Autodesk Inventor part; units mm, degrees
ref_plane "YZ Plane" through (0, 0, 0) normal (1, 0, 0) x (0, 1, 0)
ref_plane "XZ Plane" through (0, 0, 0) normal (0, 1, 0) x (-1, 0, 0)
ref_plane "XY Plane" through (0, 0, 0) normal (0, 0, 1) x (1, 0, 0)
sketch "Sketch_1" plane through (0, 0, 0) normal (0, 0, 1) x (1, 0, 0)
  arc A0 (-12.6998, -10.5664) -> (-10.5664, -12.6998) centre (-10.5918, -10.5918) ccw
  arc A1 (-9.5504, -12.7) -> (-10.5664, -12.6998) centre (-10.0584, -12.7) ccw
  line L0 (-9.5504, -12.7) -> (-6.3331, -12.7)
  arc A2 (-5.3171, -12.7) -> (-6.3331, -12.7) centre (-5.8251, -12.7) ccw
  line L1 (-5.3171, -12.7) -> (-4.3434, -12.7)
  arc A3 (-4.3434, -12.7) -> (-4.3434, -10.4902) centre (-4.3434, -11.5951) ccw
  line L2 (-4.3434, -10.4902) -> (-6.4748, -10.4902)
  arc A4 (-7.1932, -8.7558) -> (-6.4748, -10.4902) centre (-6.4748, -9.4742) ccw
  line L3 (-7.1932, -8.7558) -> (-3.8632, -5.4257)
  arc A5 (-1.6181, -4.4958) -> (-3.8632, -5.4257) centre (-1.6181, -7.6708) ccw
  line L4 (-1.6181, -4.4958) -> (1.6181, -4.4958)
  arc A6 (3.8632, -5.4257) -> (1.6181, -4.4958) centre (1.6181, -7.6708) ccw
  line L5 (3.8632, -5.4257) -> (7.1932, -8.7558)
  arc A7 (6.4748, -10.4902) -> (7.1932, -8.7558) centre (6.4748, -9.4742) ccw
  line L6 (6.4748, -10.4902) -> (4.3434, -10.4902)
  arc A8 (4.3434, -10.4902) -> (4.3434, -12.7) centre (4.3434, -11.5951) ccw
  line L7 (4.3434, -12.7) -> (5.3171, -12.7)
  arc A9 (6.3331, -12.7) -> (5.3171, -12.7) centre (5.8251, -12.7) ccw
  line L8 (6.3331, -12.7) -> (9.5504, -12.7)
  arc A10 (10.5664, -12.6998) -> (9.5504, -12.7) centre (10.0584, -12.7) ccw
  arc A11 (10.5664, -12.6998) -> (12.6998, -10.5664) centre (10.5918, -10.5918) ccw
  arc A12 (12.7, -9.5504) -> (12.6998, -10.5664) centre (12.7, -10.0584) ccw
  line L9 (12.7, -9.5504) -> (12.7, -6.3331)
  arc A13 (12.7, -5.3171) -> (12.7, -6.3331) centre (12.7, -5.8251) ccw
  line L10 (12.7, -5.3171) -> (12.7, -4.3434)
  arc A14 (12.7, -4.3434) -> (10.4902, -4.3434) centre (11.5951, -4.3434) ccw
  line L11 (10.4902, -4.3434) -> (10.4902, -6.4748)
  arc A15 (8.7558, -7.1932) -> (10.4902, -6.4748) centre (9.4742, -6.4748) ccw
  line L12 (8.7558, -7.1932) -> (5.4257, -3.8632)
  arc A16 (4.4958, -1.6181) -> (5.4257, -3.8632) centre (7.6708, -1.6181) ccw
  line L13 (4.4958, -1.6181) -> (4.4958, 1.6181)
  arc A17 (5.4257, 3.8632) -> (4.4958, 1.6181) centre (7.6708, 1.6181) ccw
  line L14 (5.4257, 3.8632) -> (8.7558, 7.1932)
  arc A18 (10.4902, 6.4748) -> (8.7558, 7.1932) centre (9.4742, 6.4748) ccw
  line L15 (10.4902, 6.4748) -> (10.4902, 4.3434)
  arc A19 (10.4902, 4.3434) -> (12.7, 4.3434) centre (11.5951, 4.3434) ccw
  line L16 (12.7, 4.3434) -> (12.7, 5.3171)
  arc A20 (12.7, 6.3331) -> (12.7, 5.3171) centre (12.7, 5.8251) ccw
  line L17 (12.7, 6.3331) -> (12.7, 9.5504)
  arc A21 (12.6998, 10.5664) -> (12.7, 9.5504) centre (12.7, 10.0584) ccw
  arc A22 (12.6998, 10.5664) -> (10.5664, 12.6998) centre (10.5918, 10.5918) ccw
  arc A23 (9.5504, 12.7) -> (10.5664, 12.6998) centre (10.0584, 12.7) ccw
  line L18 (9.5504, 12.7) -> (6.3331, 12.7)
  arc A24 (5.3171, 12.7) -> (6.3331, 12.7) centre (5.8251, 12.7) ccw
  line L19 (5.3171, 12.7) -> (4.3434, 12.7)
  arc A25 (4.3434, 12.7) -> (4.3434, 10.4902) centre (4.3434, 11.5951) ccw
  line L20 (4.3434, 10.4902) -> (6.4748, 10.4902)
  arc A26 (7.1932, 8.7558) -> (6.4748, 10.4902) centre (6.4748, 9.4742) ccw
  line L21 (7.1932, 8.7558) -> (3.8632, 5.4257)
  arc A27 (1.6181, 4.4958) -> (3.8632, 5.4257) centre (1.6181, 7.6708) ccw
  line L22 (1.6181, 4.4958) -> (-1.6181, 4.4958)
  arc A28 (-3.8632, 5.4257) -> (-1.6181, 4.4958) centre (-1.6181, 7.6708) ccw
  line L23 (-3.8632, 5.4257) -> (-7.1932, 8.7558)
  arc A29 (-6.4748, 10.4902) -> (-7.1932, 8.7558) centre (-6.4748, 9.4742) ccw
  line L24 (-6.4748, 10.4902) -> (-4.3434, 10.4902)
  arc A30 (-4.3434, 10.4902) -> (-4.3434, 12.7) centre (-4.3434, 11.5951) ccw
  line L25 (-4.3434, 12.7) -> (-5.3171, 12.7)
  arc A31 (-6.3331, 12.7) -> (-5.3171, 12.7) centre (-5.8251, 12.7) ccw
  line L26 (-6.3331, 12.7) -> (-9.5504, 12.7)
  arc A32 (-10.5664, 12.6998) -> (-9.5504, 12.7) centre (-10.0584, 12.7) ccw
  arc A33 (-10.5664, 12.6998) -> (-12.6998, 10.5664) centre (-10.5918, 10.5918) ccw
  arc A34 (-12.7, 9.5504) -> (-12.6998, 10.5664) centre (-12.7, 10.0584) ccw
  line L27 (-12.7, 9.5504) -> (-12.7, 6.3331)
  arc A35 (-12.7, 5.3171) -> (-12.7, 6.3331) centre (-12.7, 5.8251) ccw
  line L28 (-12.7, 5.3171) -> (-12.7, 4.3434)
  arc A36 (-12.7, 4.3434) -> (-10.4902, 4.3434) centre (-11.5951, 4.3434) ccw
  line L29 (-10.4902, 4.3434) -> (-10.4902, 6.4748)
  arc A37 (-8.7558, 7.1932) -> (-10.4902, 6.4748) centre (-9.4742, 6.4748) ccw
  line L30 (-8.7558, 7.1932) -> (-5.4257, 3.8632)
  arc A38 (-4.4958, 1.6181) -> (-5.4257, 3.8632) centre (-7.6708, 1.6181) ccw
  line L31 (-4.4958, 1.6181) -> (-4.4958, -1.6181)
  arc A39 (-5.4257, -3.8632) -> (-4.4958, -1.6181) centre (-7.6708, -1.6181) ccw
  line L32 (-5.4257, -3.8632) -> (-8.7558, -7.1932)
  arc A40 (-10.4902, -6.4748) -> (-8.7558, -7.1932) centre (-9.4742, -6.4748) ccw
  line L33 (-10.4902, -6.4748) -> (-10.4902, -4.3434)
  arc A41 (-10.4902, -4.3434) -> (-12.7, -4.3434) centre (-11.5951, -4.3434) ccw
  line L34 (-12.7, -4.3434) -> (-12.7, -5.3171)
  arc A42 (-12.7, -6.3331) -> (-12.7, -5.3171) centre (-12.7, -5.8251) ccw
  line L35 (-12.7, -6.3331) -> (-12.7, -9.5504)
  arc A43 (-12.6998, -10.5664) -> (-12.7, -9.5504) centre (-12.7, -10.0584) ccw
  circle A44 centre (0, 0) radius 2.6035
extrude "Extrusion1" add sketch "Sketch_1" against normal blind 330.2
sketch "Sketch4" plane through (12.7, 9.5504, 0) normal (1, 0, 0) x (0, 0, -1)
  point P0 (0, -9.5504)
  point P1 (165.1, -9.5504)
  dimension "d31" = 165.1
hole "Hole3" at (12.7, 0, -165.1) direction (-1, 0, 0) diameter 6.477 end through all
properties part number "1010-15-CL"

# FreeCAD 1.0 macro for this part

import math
import FreeCAD as App
import Part
import Sketcher
Q = App.Units.Quantity

doc = App.newDocument("Part")
body = doc.addObject("PartDesign::Body", "Body")

sketch1 = body.newObject("Sketcher::SketchObject", "Sketch")
sketch1.AttachmentSupport = (doc.getObject("XY_Plane"), [""])
sketch1.MapMode = "FlatFace"
sketch1.addGeometry([
    Part.ArcOfCircle(Part.Circle(App.Vector(-12.7, -10.1, 0), App.Vector(0, 0, 1), 0.5), math.radians(-90), math.radians(90)),
    Part.ArcOfCircle(Part.Circle(App.Vector(-10.6, -10.6, 0), App.Vector(0, 0, 1), 2.1), math.radians(179), math.radians(271)),
    Part.ArcOfCircle(Part.Circle(App.Vector(-10.1, -12.7, 0), App.Vector(0, 0, 1), 0.5), math.radians(0), math.radians(180)),
    Part.LineSegment(App.Vector(-9.6, -12.7, 0), App.Vector(-6.3, -12.7, 0)),
    Part.ArcOfCircle(Part.Circle(App.Vector(-5.8, -12.7, 0), App.Vector(0, 0, 1), 0.5), math.radians(0), math.radians(180)),
    Part.LineSegment(App.Vector(-5.3, -12.7, 0), App.Vector(-4.3, -12.7, 0)),
    Part.ArcOfCircle(Part.Circle(App.Vector(-4.3, -11.6, 0), App.Vector(0, 0, 1), 1.1), math.radians(-90), math.radians(90)),
    Part.LineSegment(App.Vector(-4.3, -10.5, 0), App.Vector(-6.5, -10.5, 0)),
    Part.ArcOfCircle(Part.Circle(App.Vector(-6.5, -9.5, 0), App.Vector(0, 0, 1), 1), math.radians(135), math.radians(270)),
    Part.LineSegment(App.Vector(-7.2, -8.8, 0), App.Vector(-3.9, -5.4, 0)),
    Part.ArcOfCircle(Part.Circle(App.Vector(-1.6, -7.7, 0), App.Vector(0, 0, 1), 3.2), math.radians(90), math.radians(135)),
    Part.LineSegment(App.Vector(-1.6, -4.5, 0), App.Vector(1.6, -4.5, 0)),
    Part.ArcOfCircle(Part.Circle(App.Vector(1.6, -7.7, 0), App.Vector(0, 0, 1), 3.2), math.radians(45), math.radians(90)),
    Part.LineSegment(App.Vector(3.9, -5.4, 0), App.Vector(7.2, -8.8, 0)),
    Part.ArcOfCircle(Part.Circle(App.Vector(6.5, -9.5, 0), App.Vector(0, 0, 1), 1), math.radians(-90), math.radians(45)),
    Part.LineSegment(App.Vector(6.5, -10.5, 0), App.Vector(4.3, -10.5, 0)),
    Part.ArcOfCircle(Part.Circle(App.Vector(4.3, -11.6, 0), App.Vector(0, 0, 1), 1.1), math.radians(90), math.radians(270)),
    Part.LineSegment(App.Vector(4.3, -12.7, 0), App.Vector(5.3, -12.7, 0)),
    Part.ArcOfCircle(Part.Circle(App.Vector(5.8, -12.7, 0), App.Vector(0, 0, 1), 0.5), math.radians(0), math.radians(180)),
    Part.LineSegment(App.Vector(6.3, -12.7, 0), App.Vector(9.6, -12.7, 0)),
    Part.ArcOfCircle(Part.Circle(App.Vector(10.1, -12.7, 0), App.Vector(0, 0, 1), 0.5), math.radians(0), math.radians(180)),
    Part.ArcOfCircle(Part.Circle(App.Vector(10.6, -10.6, 0), App.Vector(0, 0, 1), 2.1), math.radians(-91), math.radians(1)),
    Part.ArcOfCircle(Part.Circle(App.Vector(12.7, -10.1, 0), App.Vector(0, 0, 1), 0.5), math.radians(90), math.radians(270)),
    Part.LineSegment(App.Vector(12.7, -9.6, 0), App.Vector(12.7, -6.3, 0)),
    Part.ArcOfCircle(Part.Circle(App.Vector(12.7, -5.8, 0), App.Vector(0, 0, 1), 0.5), math.radians(90), math.radians(270)),
    Part.LineSegment(App.Vector(12.7, -5.3, 0), App.Vector(12.7, -4.3, 0)),
    Part.ArcOfCircle(Part.Circle(App.Vector(11.6, -4.3, 0), App.Vector(0, 0, 1), 1.1), math.radians(0), math.radians(180)),
    Part.LineSegment(App.Vector(10.5, -4.3, 0), App.Vector(10.5, -6.5, 0)),
    Part.ArcOfCircle(Part.Circle(App.Vector(9.5, -6.5, 0), App.Vector(0, 0, 1), 1), math.radians(-135), math.radians(0)),
    Part.LineSegment(App.Vector(8.8, -7.2, 0), App.Vector(5.4, -3.9, 0)),
    Part.ArcOfCircle(Part.Circle(App.Vector(7.7, -1.6, 0), App.Vector(0, 0, 1), 3.2), math.radians(180), math.radians(225)),
    Part.LineSegment(App.Vector(4.5, -1.6, 0), App.Vector(4.5, 1.6, 0)),
    Part.ArcOfCircle(Part.Circle(App.Vector(7.7, 1.6, 0), App.Vector(0, 0, 1), 3.2), math.radians(135), math.radians(180)),
    Part.LineSegment(App.Vector(5.4, 3.9, 0), App.Vector(8.8, 7.2, 0)),
    Part.ArcOfCircle(Part.Circle(App.Vector(9.5, 6.5, 0), App.Vector(0, 0, 1), 1), math.radians(0), math.radians(135)),
    Part.LineSegment(App.Vector(10.5, 6.5, 0), App.Vector(10.5, 4.3, 0)),
    Part.ArcOfCircle(Part.Circle(App.Vector(11.6, 4.3, 0), App.Vector(0, 0, 1), 1.1), math.radians(180), math.radians(360)),
    Part.LineSegment(App.Vector(12.7, 4.3, 0), App.Vector(12.7, 5.3, 0)),
    Part.ArcOfCircle(Part.Circle(App.Vector(12.7, 5.8, 0), App.Vector(0, 0, 1), 0.5), math.radians(90), math.radians(270)),
    Part.LineSegment(App.Vector(12.7, 6.3, 0), App.Vector(12.7, 9.6, 0)),
    Part.ArcOfCircle(Part.Circle(App.Vector(12.7, 10.1, 0), App.Vector(0, 0, 1), 0.5), math.radians(90), math.radians(270)),
    Part.ArcOfCircle(Part.Circle(App.Vector(10.6, 10.6, 0), App.Vector(0, 0, 1), 2.1), math.radians(-1), math.radians(91)),
    Part.ArcOfCircle(Part.Circle(App.Vector(10.1, 12.7, 0), App.Vector(0, 0, 1), 0.5), math.radians(180), math.radians(360)),
    Part.LineSegment(App.Vector(9.6, 12.7, 0), App.Vector(6.3, 12.7, 0)),
    Part.ArcOfCircle(Part.Circle(App.Vector(5.8, 12.7, 0), App.Vector(0, 0, 1), 0.5), math.radians(180), math.radians(360)),
    Part.LineSegment(App.Vector(5.3, 12.7, 0), App.Vector(4.3, 12.7, 0)),
    Part.ArcOfCircle(Part.Circle(App.Vector(4.3, 11.6, 0), App.Vector(0, 0, 1), 1.1), math.radians(90), math.radians(270)),
    Part.LineSegment(App.Vector(4.3, 10.5, 0), App.Vector(6.5, 10.5, 0)),
    Part.ArcOfCircle(Part.Circle(App.Vector(6.5, 9.5, 0), App.Vector(0, 0, 1), 1), math.radians(-45), math.radians(90)),
    Part.LineSegment(App.Vector(7.2, 8.8, 0), App.Vector(3.9, 5.4, 0)),
    Part.ArcOfCircle(Part.Circle(App.Vector(1.6, 7.7, 0), App.Vector(0, 0, 1), 3.2), math.radians(-90), math.radians(-45)),
    Part.LineSegment(App.Vector(1.6, 4.5, 0), App.Vector(-1.6, 4.5, 0)),
    Part.ArcOfCircle(Part.Circle(App.Vector(-1.6, 7.7, 0), App.Vector(0, 0, 1), 3.2), math.radians(-135), math.radians(-90)),
    Part.LineSegment(App.Vector(-3.9, 5.4, 0), App.Vector(-7.2, 8.8, 0)),
    Part.ArcOfCircle(Part.Circle(App.Vector(-6.5, 9.5, 0), App.Vector(0, 0, 1), 1), math.radians(90), math.radians(225)),
    Part.LineSegment(App.Vector(-6.5, 10.5, 0), App.Vector(-4.3, 10.5, 0)),
    Part.ArcOfCircle(Part.Circle(App.Vector(-4.3, 11.6, 0), App.Vector(0, 0, 1), 1.1), math.radians(-90), math.radians(90)),
    Part.LineSegment(App.Vector(-4.3, 12.7, 0), App.Vector(-5.3, 12.7, 0)),
    Part.ArcOfCircle(Part.Circle(App.Vector(-5.8, 12.7, 0), App.Vector(0, 0, 1), 0.5), math.radians(180), math.radians(360)),
    Part.LineSegment(App.Vector(-6.3, 12.7, 0), App.Vector(-9.6, 12.7, 0)),
    Part.ArcOfCircle(Part.Circle(App.Vector(-10.1, 12.7, 0), App.Vector(0, 0, 1), 0.5), math.radians(-180), math.radians(0)),
    Part.ArcOfCircle(Part.Circle(App.Vector(-10.6, 10.6, 0), App.Vector(0, 0, 1), 2.1), math.radians(89), math.radians(181)),
    Part.ArcOfCircle(Part.Circle(App.Vector(-12.7, 10.1, 0), App.Vector(0, 0, 1), 0.5), math.radians(-90), math.radians(90)),
    Part.LineSegment(App.Vector(-12.7, 9.6, 0), App.Vector(-12.7, 6.3, 0)),
    Part.ArcOfCircle(Part.Circle(App.Vector(-12.7, 5.8, 0), App.Vector(0, 0, 1), 0.5), math.radians(-90), math.radians(90)),
    Part.LineSegment(App.Vector(-12.7, 5.3, 0), App.Vector(-12.7, 4.3, 0)),
    Part.ArcOfCircle(Part.Circle(App.Vector(-11.6, 4.3, 0), App.Vector(0, 0, 1), 1.1), math.radians(180), math.radians(360)),
    Part.LineSegment(App.Vector(-10.5, 4.3, 0), App.Vector(-10.5, 6.5, 0)),
    Part.ArcOfCircle(Part.Circle(App.Vector(-9.5, 6.5, 0), App.Vector(0, 0, 1), 1), math.radians(45), math.radians(180)),
    Part.LineSegment(App.Vector(-8.8, 7.2, 0), App.Vector(-5.4, 3.9, 0)),
    Part.ArcOfCircle(Part.Circle(App.Vector(-7.7, 1.6, 0), App.Vector(0, 0, 1), 3.2), math.radians(0), math.radians(45)),
    Part.LineSegment(App.Vector(-4.5, 1.6, 0), App.Vector(-4.5, -1.6, 0)),
    Part.ArcOfCircle(Part.Circle(App.Vector(-7.7, -1.6, 0), App.Vector(0, 0, 1), 3.2), math.radians(-45), math.radians(0)),
    Part.LineSegment(App.Vector(-5.4, -3.9, 0), App.Vector(-8.8, -7.2, 0)),
    Part.ArcOfCircle(Part.Circle(App.Vector(-9.5, -6.5, 0), App.Vector(0, 0, 1), 1), math.radians(180), math.radians(315)),
    Part.LineSegment(App.Vector(-10.5, -6.5, 0), App.Vector(-10.5, -4.3, 0)),
    Part.ArcOfCircle(Part.Circle(App.Vector(-11.6, -4.3, 0), App.Vector(0, 0, 1), 1.1), math.radians(0), math.radians(180)),
    Part.LineSegment(App.Vector(-12.7, -4.3, 0), App.Vector(-12.7, -5.3, 0)),
    Part.ArcOfCircle(Part.Circle(App.Vector(-12.7, -5.8, 0), App.Vector(0, 0, 1), 0.5), math.radians(-90), math.radians(90)),
    Part.LineSegment(App.Vector(-12.7, -6.3, 0), App.Vector(-12.7, -9.6, 0)),
    Part.Circle(App.Vector(0, 0, 0), App.Vector(0, 0, 1), 2.6),
], False)
sketch1.addConstraint([
    Sketcher.Constraint("Coincident", 0, 1, 1, 1),
    Sketcher.Constraint("Coincident", 1, 2, 2, 2),
    Sketcher.Constraint("Coincident", 2, 1, 3, 1),
    Sketcher.Constraint("Coincident", 3, 2, 4, 2),
    Sketcher.Constraint("Coincident", 4, 1, 5, 1),
    Sketcher.Constraint("Tangent", 5, 2, 6, 1),
    Sketcher.Constraint("Tangent", 6, 2, 7, 1),
    Sketcher.Constraint("Tangent", 7, 2, 8, 2),
    Sketcher.Constraint("Tangent", 8, 1, 9, 1),
    Sketcher.Constraint("Tangent", 9, 2, 10, 2),
    Sketcher.Constraint("Tangent", 10, 1, 11, 1),
    Sketcher.Constraint("Tangent", 11, 2, 12, 2),
    Sketcher.Constraint("Tangent", 12, 1, 13, 1),
    Sketcher.Constraint("Tangent", 13, 2, 14, 2),
    Sketcher.Constraint("Tangent", 14, 1, 15, 1),
    Sketcher.Constraint("Tangent", 15, 2, 16, 1),
    Sketcher.Constraint("Tangent", 16, 2, 17, 1),
    Sketcher.Constraint("Coincident", 17, 2, 18, 2),
    Sketcher.Constraint("Coincident", 18, 1, 19, 1),
    Sketcher.Constraint("Coincident", 19, 2, 20, 2),
    Sketcher.Constraint("Coincident", 20, 1, 21, 1),
    Sketcher.Constraint("Coincident", 21, 2, 22, 2),
    Sketcher.Constraint("Coincident", 22, 1, 23, 1),
    Sketcher.Constraint("Coincident", 23, 2, 24, 2),
    Sketcher.Constraint("Coincident", 24, 1, 25, 1),
    Sketcher.Constraint("Tangent", 25, 2, 26, 1),
    Sketcher.Constraint("Tangent", 26, 2, 27, 1),
    Sketcher.Constraint("Tangent", 27, 2, 28, 2),
    Sketcher.Constraint("Tangent", 28, 1, 29, 1),
    Sketcher.Constraint("Tangent", 29, 2, 30, 2),
    Sketcher.Constraint("Tangent", 30, 1, 31, 1),
    Sketcher.Constraint("Tangent", 31, 2, 32, 2),
    Sketcher.Constraint("Tangent", 32, 1, 33, 1),
    Sketcher.Constraint("Tangent", 33, 2, 34, 2),
    Sketcher.Constraint("Tangent", 34, 1, 35, 1),
    Sketcher.Constraint("Tangent", 35, 2, 36, 1),
    Sketcher.Constraint("Tangent", 36, 2, 37, 1),
    Sketcher.Constraint("Coincident", 37, 2, 38, 2),
    Sketcher.Constraint("Coincident", 38, 1, 39, 1),
    Sketcher.Constraint("Coincident", 39, 2, 40, 2),
    Sketcher.Constraint("Coincident", 40, 1, 41, 1),
    Sketcher.Constraint("Coincident", 41, 2, 42, 2),
    Sketcher.Constraint("Coincident", 42, 1, 43, 1),
    Sketcher.Constraint("Coincident", 43, 2, 44, 2),
    Sketcher.Constraint("Coincident", 44, 1, 45, 1),
    Sketcher.Constraint("Tangent", 45, 2, 46, 1),
    Sketcher.Constraint("Tangent", 46, 2, 47, 1),
    Sketcher.Constraint("Tangent", 47, 2, 48, 2),
    Sketcher.Constraint("Tangent", 48, 1, 49, 1),
    Sketcher.Constraint("Tangent", 49, 2, 50, 2),
    Sketcher.Constraint("Tangent", 50, 1, 51, 1),
    Sketcher.Constraint("Tangent", 51, 2, 52, 2),
    Sketcher.Constraint("Tangent", 52, 1, 53, 1),
    Sketcher.Constraint("Tangent", 53, 2, 54, 2),
    Sketcher.Constraint("Tangent", 54, 1, 55, 1),
    Sketcher.Constraint("Tangent", 55, 2, 56, 1),
    Sketcher.Constraint("Tangent", 56, 2, 57, 1),
    Sketcher.Constraint("Coincident", 57, 2, 58, 2),
    Sketcher.Constraint("Coincident", 58, 1, 59, 1),
    Sketcher.Constraint("Coincident", 59, 2, 60, 2),
    Sketcher.Constraint("Coincident", 60, 1, 61, 1),
    Sketcher.Constraint("Coincident", 61, 2, 62, 2),
    Sketcher.Constraint("Coincident", 62, 1, 63, 1),
    Sketcher.Constraint("Coincident", 63, 2, 64, 2),
    Sketcher.Constraint("Coincident", 64, 1, 65, 1),
    Sketcher.Constraint("Tangent", 65, 2, 66, 1),
    Sketcher.Constraint("Tangent", 66, 2, 67, 1),
    Sketcher.Constraint("Tangent", 67, 2, 68, 2),
    Sketcher.Constraint("Tangent", 68, 1, 69, 1),
    Sketcher.Constraint("Tangent", 69, 2, 70, 2),
    Sketcher.Constraint("Tangent", 70, 1, 71, 1),
    Sketcher.Constraint("Tangent", 71, 2, 72, 2),
    Sketcher.Constraint("Tangent", 72, 1, 73, 1),
    Sketcher.Constraint("Tangent", 73, 2, 74, 2),
    Sketcher.Constraint("Tangent", 74, 1, 75, 1),
    Sketcher.Constraint("Tangent", 75, 2, 76, 1),
    Sketcher.Constraint("Tangent", 76, 2, 77, 1),
    Sketcher.Constraint("Coincident", 77, 2, 78, 2),
    Sketcher.Constraint("Coincident", 78, 1, 79, 1),
    Sketcher.Constraint("Coincident", 79, 2, 0, 2),
    Sketcher.Constraint("Horizontal", 3),
    Sketcher.Constraint("Horizontal", 5),
    Sketcher.Constraint("Horizontal", 7),
    Sketcher.Constraint("Horizontal", 11),
    Sketcher.Constraint("Horizontal", 15),
    Sketcher.Constraint("Horizontal", 17),
    Sketcher.Constraint("Horizontal", 19),
    Sketcher.Constraint("Vertical", 23),
    Sketcher.Constraint("Vertical", 25),
    Sketcher.Constraint("Vertical", 27),
    Sketcher.Constraint("Vertical", 31),
    Sketcher.Constraint("Vertical", 35),
    Sketcher.Constraint("Vertical", 37),
    Sketcher.Constraint("Vertical", 39),
    Sketcher.Constraint("Horizontal", 43),
    Sketcher.Constraint("Horizontal", 45),
    Sketcher.Constraint("Horizontal", 47),
    Sketcher.Constraint("Horizontal", 51),
    Sketcher.Constraint("Horizontal", 55),
    Sketcher.Constraint("Horizontal", 57),
    Sketcher.Constraint("Horizontal", 59),
    Sketcher.Constraint("Vertical", 63),
    Sketcher.Constraint("Vertical", 65),
    Sketcher.Constraint("Vertical", 67),
    Sketcher.Constraint("Vertical", 71),
    Sketcher.Constraint("Vertical", 75),
    Sketcher.Constraint("Vertical", 77),
    Sketcher.Constraint("Vertical", 79),
    Sketcher.Constraint("Coincident", 80, 3, -1, 1),
    Sketcher.Constraint("Equal", 0, 2),
    Sketcher.Constraint("Equal", 2, 4),
    Sketcher.Constraint("Equal", 10, 12),
    Sketcher.Constraint("Equal", 8, 14),
    Sketcher.Constraint("Equal", 6, 16),
    Sketcher.Constraint("Equal", 4, 18),
    Sketcher.Constraint("Equal", 18, 20),
    Sketcher.Constraint("Equal", 1, 21),
    Sketcher.Constraint("Equal", 20, 22),
    Sketcher.Constraint("Equal", 22, 24),
    Sketcher.Constraint("Equal", 16, 26),
    Sketcher.Constraint("Equal", 14, 28),
    Sketcher.Constraint("Equal", 12, 30),
    Sketcher.Constraint("Equal", 30, 32),
    Sketcher.Constraint("Equal", 28, 34),
    Sketcher.Constraint("Equal", 26, 36),
    Sketcher.Constraint("Equal", 24, 38),
    Sketcher.Constraint("Equal", 38, 40),
    Sketcher.Constraint("Equal", 21, 41),
    Sketcher.Constraint("Equal", 40, 42),
    Sketcher.Constraint("Equal", 42, 44),
    Sketcher.Constraint("Equal", 36, 46),
    Sketcher.Constraint("Equal", 34, 48),
    Sketcher.Constraint("Equal", 32, 50),
    Sketcher.Constraint("Equal", 50, 52),
    Sketcher.Constraint("Equal", 48, 54),
    Sketcher.Constraint("Equal", 46, 56),
    Sketcher.Constraint("Equal", 44, 58),
    Sketcher.Constraint("Equal", 58, 60),
    Sketcher.Constraint("Equal", 41, 61),
    Sketcher.Constraint("Equal", 60, 62),
    Sketcher.Constraint("Equal", 62, 64),
    Sketcher.Constraint("Equal", 56, 66),
    Sketcher.Constraint("Equal", 54, 68),
    Sketcher.Constraint("Equal", 52, 70),
    Sketcher.Constraint("Equal", 70, 72),
    Sketcher.Constraint("Equal", 68, 74),
    Sketcher.Constraint("Equal", 66, 76),
    Sketcher.Constraint("Equal", 64, 78),
    Sketcher.Constraint("Symmetric", 0, 3, 40, 3, -1, 1),
    Sketcher.Constraint("Symmetric", 1, 3, 41, 3, -1, 1),
    Sketcher.Constraint("Symmetric", 2, 3, 42, 3, -1, 1),
    Sketcher.Constraint("Symmetric", 4, 3, 44, 3, -1, 1),
    Sketcher.Constraint("Symmetric", 6, 3, 46, 3, -1, 1),
    Sketcher.Constraint("Symmetric", 10, 3, 50, 3, -1, 1),
    Sketcher.Constraint("Symmetric", 14, 3, 54, 3, -1, 1),
    Sketcher.Constraint("Symmetric", 18, 3, 58, 3, -1, 1),
    Sketcher.Constraint("Symmetric", 20, 3, 60, 3, -1, 1),
    Sketcher.Constraint("Symmetric", 21, 3, 61, 3, -1, 1),
    Sketcher.Constraint("Symmetric", 22, 3, 62, 3, -1, 1),
    Sketcher.Constraint("Symmetric", 24, 3, 64, 3, -1, 1),
    Sketcher.Constraint("Symmetric", 26, 3, 66, 3, -1, 1),
    Sketcher.Constraint("Symmetric", 30, 3, 70, 3, -1, 1),
    Sketcher.Constraint("Symmetric", 34, 3, 74, 3, -1, 1),
    Sketcher.Constraint("Symmetric", 38, 3, 78, 3, -1, 1),
    Sketcher.Constraint("Symmetric", 8, 3, 14, 3, -2),
    Sketcher.Constraint("Symmetric", 4, 3, 18, 3, -2),
    Sketcher.Constraint("Symmetric", 2, 3, 20, 3, -2),
    Sketcher.Constraint("Symmetric", 1, 3, 21, 3, -2),
    Sketcher.Constraint("Symmetric", 0, 3, 22, 3, -2),
    Sketcher.Constraint("Symmetric", 38, 3, 64, 3, -2),
    Sketcher.Constraint("Symmetric", 36, 3, 66, 3, -2),
    Sketcher.Constraint("Symmetric", 49, 2, 52, 1, -2),
    Sketcher.Constraint("Symmetric", 33, 2, 68, 1, -2),
    Sketcher.Constraint("Symmetric", 29, 2, 72, 1, -2),
    Sketcher.Constraint("Perpendicular", 9, 13),
    Sketcher.Constraint("Parallel", 13, 29),
    Sketcher.Constraint("Perpendicular", 29, 33),
    Sketcher.Constraint("Horizontal", 2, 3, 4, 3),
    Sketcher.Constraint("Horizontal", 26, 3, 76, 3),
    Sketcher.Constraint("Horizontal", 20, 3, 1, 2),
    Sketcher.Constraint("Horizontal", 1, 2, 2, 1),
    Sketcher.Constraint("Horizontal", 3, 2, 4, 1),
    Sketcher.Constraint("Horizontal", 17, 2, 18, 1),
    Sketcher.Constraint("Horizontal", 41, 2, 42, 1),
    Sketcher.Constraint("Horizontal", 57, 2, 58, 1),
    Sketcher.Constraint("Vertical", 22, 3, 24, 3),
    Sketcher.Constraint("Vertical", 16, 3, 46, 3),
    Sketcher.Constraint("Vertical", 6, 3, 56, 3),
    Sketcher.Constraint("Vertical", 78, 3, 0, 1),
    Sketcher.Constraint("Vertical", 21, 2, 22, 1),
    Sketcher.Constraint("Vertical", 23, 2, 24, 1),
    Sketcher.Constraint("Vertical", 37, 2, 38, 1),
    Sketcher.Constraint("Vertical", 61, 2, 62, 1),
    Sketcher.Constraint("Vertical", 77, 2, 78, 1),
    Sketcher.Constraint("Equal", 59, 23),
    Sketcher.Constraint("Equal", 57, 25),
    Sketcher.Constraint("Equal", 55, 27),
    Sketcher.Constraint("Equal", 51, 31),
    Sketcher.Constraint("Equal", 13, 29),
    Sketcher.Constraint("Radius", 0, Q("0.02 in")),
    Sketcher.Constraint("Radius", 8, Q("0.04 in")),
    Sketcher.Constraint("Diameter", 80, Q("0.205 in")),
    Sketcher.Constraint("Radius", 1, Q("0.083 in")),
    Sketcher.Constraint("Radius", 10, Q("0.125 in")),
    Sketcher.Constraint("DistanceX", 0, 3, -1, 1, Q("0.5 in")),
    Sketcher.Constraint("DistanceY", 2, 3, -1, 1, Q("0.5 in")),
    Sketcher.Constraint("Radius", 6, Q("0.0435 in")),
    Sketcher.Constraint("DistanceX", 11, 1, 11, 2, Q("0.1274 in")),
    Sketcher.Constraint("DistanceY", 0, 3, -1, 1, Q("0.396 in")),
    Sketcher.Constraint("DistanceX", 6, 3, -1, 1, Q("0.171 in")),
    Sketcher.Constraint("DistanceY", 10, 3, -1, 1, Q("0.302 in")),
    Sketcher.Constraint("DistanceX", 3, 1, 3, 2, 3.2173),
])
pad1 = body.newObject("PartDesign::Pad", "Pad")
pad1.Profile = sketch1
pad1.Length = Q("13 in")
pad1.Reversed = True

sketch2 = body.newObject("Sketcher::SketchObject", "Sketch001")
sketch2.AttachmentSupport = (doc.getObject("YZ_Plane"), [""])
sketch2.MapMode = "FlatFace"
sketch2.AttachmentOffset = App.Placement(App.Vector(0, 0, 0.5 * 25.4), App.Rotation())
sketch2.addGeometry(Part.Circle(App.Vector(0, -165.1, 0), App.Vector(0, 0, 1), 3.2), False)
sketch2.addConstraint([
    Sketcher.Constraint("PointOnObject", 0, 3, -2),
    Sketcher.Constraint("Diameter", 0, Q("0.255 in")),
    Sketcher.Constraint("DistanceY", 0, 3, -1, 1, Q("6.5 in")),
])
doc.recompute()
hole = body.newObject("PartDesign::Hole", "Hole")
hole.Profile = sketch2
hole.ThreadType = "None"
hole.Diameter = Q("0.255 in")
hole.DepthType = "ThroughAll"

doc.recompute()
